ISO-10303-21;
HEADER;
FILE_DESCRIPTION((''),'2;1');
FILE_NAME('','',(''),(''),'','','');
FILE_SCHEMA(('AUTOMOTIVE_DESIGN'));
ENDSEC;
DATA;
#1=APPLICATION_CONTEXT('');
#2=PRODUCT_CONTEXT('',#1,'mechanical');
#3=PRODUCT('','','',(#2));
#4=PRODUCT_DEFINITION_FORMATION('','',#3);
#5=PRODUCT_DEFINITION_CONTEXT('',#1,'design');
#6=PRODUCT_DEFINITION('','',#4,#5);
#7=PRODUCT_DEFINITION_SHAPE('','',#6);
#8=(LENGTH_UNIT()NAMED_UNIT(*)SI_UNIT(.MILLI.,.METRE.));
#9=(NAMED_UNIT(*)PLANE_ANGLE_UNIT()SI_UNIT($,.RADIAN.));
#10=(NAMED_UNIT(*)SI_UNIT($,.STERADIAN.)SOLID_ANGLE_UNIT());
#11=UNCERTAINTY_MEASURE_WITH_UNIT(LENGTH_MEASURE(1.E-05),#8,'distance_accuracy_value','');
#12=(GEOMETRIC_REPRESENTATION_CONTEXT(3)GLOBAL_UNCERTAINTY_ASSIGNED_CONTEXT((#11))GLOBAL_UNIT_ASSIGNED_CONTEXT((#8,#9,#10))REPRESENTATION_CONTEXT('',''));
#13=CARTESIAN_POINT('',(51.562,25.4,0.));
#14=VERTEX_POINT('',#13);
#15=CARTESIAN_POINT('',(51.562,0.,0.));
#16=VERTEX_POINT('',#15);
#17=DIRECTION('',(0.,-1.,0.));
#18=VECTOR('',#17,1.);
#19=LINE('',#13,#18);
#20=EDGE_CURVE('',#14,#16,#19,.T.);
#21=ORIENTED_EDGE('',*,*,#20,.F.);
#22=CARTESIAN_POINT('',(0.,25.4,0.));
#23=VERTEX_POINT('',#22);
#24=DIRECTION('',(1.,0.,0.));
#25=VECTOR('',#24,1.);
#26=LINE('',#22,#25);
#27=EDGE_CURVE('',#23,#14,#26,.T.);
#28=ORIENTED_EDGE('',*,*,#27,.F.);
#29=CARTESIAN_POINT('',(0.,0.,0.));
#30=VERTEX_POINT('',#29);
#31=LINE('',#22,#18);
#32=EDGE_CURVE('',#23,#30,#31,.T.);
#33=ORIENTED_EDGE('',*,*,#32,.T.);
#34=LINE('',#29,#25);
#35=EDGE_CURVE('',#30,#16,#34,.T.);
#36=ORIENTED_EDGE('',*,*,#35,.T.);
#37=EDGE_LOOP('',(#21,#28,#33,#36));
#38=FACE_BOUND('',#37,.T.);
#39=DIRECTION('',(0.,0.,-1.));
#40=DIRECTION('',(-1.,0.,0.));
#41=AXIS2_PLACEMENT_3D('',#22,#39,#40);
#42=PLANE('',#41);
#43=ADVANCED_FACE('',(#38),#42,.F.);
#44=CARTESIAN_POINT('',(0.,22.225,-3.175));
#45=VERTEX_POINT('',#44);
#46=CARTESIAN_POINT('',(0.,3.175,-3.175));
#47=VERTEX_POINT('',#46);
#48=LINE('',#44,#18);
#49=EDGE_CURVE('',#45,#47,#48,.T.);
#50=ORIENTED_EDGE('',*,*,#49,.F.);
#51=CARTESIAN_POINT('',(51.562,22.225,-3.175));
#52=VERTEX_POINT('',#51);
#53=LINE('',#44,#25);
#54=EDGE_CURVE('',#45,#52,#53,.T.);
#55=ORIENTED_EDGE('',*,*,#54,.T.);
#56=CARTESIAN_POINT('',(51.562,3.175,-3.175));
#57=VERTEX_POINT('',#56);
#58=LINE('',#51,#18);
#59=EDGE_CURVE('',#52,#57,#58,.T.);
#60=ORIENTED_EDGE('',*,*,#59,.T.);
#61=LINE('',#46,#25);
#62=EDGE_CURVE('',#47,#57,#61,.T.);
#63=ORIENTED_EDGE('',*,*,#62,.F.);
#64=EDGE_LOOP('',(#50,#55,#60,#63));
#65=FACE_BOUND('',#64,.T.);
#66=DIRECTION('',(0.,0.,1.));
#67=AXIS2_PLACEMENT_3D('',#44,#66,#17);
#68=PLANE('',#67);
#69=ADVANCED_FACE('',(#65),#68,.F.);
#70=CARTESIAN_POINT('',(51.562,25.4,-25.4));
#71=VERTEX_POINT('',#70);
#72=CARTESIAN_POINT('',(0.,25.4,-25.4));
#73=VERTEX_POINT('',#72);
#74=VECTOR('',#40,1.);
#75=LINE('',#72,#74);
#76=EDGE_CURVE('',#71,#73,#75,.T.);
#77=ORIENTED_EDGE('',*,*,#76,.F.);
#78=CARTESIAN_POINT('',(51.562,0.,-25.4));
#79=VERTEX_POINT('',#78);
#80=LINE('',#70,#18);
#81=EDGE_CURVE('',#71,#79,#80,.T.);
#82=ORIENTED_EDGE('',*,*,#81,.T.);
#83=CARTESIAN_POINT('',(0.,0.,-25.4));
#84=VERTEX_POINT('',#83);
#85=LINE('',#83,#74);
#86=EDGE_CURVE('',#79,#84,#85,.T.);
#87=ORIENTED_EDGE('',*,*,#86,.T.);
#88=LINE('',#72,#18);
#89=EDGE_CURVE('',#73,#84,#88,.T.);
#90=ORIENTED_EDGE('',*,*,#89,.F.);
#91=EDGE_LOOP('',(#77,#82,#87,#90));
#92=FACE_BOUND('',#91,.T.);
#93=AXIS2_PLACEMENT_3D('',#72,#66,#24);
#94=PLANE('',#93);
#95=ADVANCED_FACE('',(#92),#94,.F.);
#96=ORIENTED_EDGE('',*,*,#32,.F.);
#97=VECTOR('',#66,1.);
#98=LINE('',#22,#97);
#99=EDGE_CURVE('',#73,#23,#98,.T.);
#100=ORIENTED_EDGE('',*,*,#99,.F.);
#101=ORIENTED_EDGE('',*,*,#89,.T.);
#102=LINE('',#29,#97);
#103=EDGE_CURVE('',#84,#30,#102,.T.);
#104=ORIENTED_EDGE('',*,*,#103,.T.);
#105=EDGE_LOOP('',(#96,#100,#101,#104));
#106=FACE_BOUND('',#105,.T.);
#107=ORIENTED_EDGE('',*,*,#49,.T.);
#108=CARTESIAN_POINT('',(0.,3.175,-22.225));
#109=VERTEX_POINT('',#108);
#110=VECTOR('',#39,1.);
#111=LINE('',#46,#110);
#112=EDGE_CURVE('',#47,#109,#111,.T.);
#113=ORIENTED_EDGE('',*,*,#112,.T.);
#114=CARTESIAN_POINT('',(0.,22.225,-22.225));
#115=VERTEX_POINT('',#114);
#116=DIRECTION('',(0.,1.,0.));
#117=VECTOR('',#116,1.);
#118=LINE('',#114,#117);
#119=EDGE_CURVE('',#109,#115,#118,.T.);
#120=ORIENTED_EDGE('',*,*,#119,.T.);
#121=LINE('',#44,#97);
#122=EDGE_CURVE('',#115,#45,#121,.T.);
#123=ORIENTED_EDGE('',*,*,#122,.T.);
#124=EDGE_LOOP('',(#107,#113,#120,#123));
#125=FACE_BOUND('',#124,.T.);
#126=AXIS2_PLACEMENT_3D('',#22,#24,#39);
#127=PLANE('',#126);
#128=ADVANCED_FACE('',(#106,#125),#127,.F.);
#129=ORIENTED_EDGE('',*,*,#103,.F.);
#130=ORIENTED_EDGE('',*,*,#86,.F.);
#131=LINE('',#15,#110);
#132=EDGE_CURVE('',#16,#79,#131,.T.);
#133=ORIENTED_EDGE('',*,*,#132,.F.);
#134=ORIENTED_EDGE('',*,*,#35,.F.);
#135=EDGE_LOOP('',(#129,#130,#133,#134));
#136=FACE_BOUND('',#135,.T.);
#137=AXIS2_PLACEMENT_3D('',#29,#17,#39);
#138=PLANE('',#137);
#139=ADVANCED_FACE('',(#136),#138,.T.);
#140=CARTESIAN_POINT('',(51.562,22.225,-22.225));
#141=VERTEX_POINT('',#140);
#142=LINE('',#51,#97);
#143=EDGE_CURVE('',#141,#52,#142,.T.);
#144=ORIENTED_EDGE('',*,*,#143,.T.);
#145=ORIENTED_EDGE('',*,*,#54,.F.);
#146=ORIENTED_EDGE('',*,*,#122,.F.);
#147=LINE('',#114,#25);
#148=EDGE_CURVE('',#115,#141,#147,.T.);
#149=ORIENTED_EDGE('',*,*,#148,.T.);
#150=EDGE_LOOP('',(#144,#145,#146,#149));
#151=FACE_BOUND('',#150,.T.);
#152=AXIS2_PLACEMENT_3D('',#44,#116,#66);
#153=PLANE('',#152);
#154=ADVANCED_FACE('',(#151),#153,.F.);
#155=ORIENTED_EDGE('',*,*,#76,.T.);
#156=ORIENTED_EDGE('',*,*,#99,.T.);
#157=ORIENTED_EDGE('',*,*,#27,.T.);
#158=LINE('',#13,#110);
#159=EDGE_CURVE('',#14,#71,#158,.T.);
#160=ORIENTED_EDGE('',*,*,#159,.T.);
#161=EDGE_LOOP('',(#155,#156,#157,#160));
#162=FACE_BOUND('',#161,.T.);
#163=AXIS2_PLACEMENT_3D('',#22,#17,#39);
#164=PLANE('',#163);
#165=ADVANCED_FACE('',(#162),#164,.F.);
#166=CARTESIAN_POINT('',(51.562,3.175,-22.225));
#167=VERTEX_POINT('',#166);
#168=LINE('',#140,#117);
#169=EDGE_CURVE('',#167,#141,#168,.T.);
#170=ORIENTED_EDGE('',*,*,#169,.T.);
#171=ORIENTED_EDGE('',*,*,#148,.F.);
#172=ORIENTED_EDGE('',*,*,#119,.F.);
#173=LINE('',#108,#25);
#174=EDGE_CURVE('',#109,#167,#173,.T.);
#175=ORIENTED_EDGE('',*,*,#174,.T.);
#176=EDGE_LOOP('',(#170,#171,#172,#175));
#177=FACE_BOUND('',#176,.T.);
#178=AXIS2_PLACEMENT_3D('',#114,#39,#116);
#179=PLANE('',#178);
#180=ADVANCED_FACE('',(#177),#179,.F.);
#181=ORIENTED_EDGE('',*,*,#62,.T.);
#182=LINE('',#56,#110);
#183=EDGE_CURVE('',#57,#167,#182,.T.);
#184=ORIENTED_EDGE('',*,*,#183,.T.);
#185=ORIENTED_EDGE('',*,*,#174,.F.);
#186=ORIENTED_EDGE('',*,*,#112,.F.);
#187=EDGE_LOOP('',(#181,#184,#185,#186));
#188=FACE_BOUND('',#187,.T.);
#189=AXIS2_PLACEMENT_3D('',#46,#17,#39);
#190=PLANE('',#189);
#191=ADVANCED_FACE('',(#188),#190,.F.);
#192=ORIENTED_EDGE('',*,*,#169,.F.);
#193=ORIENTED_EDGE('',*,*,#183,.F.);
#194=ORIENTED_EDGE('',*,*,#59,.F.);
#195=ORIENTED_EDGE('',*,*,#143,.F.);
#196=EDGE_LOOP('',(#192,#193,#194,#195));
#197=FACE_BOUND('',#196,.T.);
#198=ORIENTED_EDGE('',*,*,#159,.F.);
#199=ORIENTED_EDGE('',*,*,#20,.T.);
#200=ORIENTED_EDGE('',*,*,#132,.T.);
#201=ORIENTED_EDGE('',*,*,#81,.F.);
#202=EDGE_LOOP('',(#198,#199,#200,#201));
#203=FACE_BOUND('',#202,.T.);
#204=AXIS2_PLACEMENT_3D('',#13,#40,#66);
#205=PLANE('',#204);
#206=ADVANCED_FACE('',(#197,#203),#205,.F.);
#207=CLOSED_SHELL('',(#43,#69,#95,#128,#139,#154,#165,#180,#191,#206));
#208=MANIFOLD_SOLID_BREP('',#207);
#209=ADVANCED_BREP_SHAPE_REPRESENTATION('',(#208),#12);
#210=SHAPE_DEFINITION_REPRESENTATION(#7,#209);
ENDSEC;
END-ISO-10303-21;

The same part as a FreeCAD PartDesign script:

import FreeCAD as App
import Part
import Sketcher
Q = App.Units.Quantity

doc = App.newDocument("Part")
params = doc.addObject("Spreadsheet::Sheet", "Params")
for row, (alias, value) in enumerate([
    ("sketch1_height", "1 in"),
    ("sketch1_width", "2.03 in"),
    ("pad1_length", "1 in"),
    ("sketch2_width", "0.75 in"),
], start=1):
    params.set(f"A{row}", alias)
    params.set(f"B{row}", "=" + value)
    params.setAlias(f"B{row}", alias)

body = doc.addObject("PartDesign::Body", "Body")

sketch1 = body.newObject("Sketcher::SketchObject", "Sketch")
sketch1.AttachmentSupport = (doc.getObject("XZ_Plane"), [""])
sketch1.MapMode = "FlatFace"
sketch1.addGeometry(Part.LineSegment(App.Vector(0, -25, 0), App.Vector(0, 0, 0)), False)
sketch1.addGeometry(Part.LineSegment(App.Vector(0, 0, 0), App.Vector(52, 0, 0)), False)
sketch1.addGeometry(Part.LineSegment(App.Vector(52, 0, 0), App.Vector(52, -25, 0)), False)
sketch1.addGeometry(Part.LineSegment(App.Vector(52, -25, 0), App.Vector(0, -25, 0)), False)
sketch1.addConstraint(Sketcher.Constraint("Coincident", 0, 2, 1, 1))
sketch1.addConstraint(Sketcher.Constraint("Coincident", 1, 2, 2, 1))
sketch1.addConstraint(Sketcher.Constraint("Coincident", 2, 2, 3, 1))
sketch1.addConstraint(Sketcher.Constraint("Coincident", 3, 2, 0, 1))
sketch1.addConstraint(Sketcher.Constraint("Vertical", 0))
sketch1.addConstraint(Sketcher.Constraint("Horizontal", 1))
sketch1.addConstraint(Sketcher.Constraint("Vertical", 2))
sketch1.addConstraint(Sketcher.Constraint("Horizontal", 3))
sketch1.addConstraint(Sketcher.Constraint("Coincident", 0, 2, -1, 1))
sketch1.addConstraint(Sketcher.Constraint("DistanceY", 0, 1, 0, 2, Q("1 in")))
sketch1.addConstraint(Sketcher.Constraint("DistanceX", 1, 1, 1, 2, Q("2.03 in")))
sketch1.setExpression("Constraints[9]", "Params.sketch1_height")
sketch1.setExpression("Constraints[10]", "Params.sketch1_width")
pad1 = body.newObject("PartDesign::Pad", "Pad")
pad1.Profile = sketch1
pad1.setExpression("Length", "Params.pad1_length")
pad1.Reversed = True

sketch2 = body.newObject("Sketcher::SketchObject", "Sketch001")
sketch2.AttachmentSupport = (doc.getObject("YZ_Plane"), [""])
sketch2.MapMode = "FlatFace"
sketch2.AttachmentOffset = App.Placement(App.Vector(0, 0, 2.03 * 25.4), App.Rotation())
sketch2.addGeometry(Part.LineSegment(App.Vector(22, -3, 0), App.Vector(3, -3, 0)), False)
sketch2.addGeometry(Part.LineSegment(App.Vector(3, -3, 0), App.Vector(3, -22, 0)), False)
sketch2.addGeometry(Part.LineSegment(App.Vector(3, -22, 0), App.Vector(22, -22, 0)), False)
sketch2.addGeometry(Part.LineSegment(App.Vector(22, -22, 0), App.Vector(22, -3, 0)), False)
sketch2.addConstraint(Sketcher.Constraint("Coincident", 0, 2, 1, 1))
sketch2.addConstraint(Sketcher.Constraint("Coincident", 1, 2, 2, 1))
sketch2.addConstraint(Sketcher.Constraint("Coincident", 2, 2, 3, 1))
sketch2.addConstraint(Sketcher.Constraint("Coincident", 3, 2, 0, 1))
sketch2.addConstraint(Sketcher.Constraint("Horizontal", 0))
sketch2.addConstraint(Sketcher.Constraint("Vertical", 1))
sketch2.addConstraint(Sketcher.Constraint("Horizontal", 2))
sketch2.addConstraint(Sketcher.Constraint("Vertical", 3))
sketch2.addConstraint(Sketcher.Constraint("Equal", 2, 1))
sketch2.addConstraint(Sketcher.Constraint("DistanceX", 0, 2, 0, 1, Q("0.75 in")))
sketch2.addConstraint(Sketcher.Constraint("DistanceX", -1, 1, 0, 2, Q("0.125 in")))
sketch2.addConstraint(Sketcher.Constraint("DistanceY", 0, 2, -1, 1, Q("0.125 in")))
sketch2.setExpression("Constraints[9]", "Params.sketch2_width")
pocket1 = body.newObject("PartDesign::Pocket", "Pocket")
pocket1.Profile = sketch2
pocket1.Type = "ThroughAll"

doc.recompute()
